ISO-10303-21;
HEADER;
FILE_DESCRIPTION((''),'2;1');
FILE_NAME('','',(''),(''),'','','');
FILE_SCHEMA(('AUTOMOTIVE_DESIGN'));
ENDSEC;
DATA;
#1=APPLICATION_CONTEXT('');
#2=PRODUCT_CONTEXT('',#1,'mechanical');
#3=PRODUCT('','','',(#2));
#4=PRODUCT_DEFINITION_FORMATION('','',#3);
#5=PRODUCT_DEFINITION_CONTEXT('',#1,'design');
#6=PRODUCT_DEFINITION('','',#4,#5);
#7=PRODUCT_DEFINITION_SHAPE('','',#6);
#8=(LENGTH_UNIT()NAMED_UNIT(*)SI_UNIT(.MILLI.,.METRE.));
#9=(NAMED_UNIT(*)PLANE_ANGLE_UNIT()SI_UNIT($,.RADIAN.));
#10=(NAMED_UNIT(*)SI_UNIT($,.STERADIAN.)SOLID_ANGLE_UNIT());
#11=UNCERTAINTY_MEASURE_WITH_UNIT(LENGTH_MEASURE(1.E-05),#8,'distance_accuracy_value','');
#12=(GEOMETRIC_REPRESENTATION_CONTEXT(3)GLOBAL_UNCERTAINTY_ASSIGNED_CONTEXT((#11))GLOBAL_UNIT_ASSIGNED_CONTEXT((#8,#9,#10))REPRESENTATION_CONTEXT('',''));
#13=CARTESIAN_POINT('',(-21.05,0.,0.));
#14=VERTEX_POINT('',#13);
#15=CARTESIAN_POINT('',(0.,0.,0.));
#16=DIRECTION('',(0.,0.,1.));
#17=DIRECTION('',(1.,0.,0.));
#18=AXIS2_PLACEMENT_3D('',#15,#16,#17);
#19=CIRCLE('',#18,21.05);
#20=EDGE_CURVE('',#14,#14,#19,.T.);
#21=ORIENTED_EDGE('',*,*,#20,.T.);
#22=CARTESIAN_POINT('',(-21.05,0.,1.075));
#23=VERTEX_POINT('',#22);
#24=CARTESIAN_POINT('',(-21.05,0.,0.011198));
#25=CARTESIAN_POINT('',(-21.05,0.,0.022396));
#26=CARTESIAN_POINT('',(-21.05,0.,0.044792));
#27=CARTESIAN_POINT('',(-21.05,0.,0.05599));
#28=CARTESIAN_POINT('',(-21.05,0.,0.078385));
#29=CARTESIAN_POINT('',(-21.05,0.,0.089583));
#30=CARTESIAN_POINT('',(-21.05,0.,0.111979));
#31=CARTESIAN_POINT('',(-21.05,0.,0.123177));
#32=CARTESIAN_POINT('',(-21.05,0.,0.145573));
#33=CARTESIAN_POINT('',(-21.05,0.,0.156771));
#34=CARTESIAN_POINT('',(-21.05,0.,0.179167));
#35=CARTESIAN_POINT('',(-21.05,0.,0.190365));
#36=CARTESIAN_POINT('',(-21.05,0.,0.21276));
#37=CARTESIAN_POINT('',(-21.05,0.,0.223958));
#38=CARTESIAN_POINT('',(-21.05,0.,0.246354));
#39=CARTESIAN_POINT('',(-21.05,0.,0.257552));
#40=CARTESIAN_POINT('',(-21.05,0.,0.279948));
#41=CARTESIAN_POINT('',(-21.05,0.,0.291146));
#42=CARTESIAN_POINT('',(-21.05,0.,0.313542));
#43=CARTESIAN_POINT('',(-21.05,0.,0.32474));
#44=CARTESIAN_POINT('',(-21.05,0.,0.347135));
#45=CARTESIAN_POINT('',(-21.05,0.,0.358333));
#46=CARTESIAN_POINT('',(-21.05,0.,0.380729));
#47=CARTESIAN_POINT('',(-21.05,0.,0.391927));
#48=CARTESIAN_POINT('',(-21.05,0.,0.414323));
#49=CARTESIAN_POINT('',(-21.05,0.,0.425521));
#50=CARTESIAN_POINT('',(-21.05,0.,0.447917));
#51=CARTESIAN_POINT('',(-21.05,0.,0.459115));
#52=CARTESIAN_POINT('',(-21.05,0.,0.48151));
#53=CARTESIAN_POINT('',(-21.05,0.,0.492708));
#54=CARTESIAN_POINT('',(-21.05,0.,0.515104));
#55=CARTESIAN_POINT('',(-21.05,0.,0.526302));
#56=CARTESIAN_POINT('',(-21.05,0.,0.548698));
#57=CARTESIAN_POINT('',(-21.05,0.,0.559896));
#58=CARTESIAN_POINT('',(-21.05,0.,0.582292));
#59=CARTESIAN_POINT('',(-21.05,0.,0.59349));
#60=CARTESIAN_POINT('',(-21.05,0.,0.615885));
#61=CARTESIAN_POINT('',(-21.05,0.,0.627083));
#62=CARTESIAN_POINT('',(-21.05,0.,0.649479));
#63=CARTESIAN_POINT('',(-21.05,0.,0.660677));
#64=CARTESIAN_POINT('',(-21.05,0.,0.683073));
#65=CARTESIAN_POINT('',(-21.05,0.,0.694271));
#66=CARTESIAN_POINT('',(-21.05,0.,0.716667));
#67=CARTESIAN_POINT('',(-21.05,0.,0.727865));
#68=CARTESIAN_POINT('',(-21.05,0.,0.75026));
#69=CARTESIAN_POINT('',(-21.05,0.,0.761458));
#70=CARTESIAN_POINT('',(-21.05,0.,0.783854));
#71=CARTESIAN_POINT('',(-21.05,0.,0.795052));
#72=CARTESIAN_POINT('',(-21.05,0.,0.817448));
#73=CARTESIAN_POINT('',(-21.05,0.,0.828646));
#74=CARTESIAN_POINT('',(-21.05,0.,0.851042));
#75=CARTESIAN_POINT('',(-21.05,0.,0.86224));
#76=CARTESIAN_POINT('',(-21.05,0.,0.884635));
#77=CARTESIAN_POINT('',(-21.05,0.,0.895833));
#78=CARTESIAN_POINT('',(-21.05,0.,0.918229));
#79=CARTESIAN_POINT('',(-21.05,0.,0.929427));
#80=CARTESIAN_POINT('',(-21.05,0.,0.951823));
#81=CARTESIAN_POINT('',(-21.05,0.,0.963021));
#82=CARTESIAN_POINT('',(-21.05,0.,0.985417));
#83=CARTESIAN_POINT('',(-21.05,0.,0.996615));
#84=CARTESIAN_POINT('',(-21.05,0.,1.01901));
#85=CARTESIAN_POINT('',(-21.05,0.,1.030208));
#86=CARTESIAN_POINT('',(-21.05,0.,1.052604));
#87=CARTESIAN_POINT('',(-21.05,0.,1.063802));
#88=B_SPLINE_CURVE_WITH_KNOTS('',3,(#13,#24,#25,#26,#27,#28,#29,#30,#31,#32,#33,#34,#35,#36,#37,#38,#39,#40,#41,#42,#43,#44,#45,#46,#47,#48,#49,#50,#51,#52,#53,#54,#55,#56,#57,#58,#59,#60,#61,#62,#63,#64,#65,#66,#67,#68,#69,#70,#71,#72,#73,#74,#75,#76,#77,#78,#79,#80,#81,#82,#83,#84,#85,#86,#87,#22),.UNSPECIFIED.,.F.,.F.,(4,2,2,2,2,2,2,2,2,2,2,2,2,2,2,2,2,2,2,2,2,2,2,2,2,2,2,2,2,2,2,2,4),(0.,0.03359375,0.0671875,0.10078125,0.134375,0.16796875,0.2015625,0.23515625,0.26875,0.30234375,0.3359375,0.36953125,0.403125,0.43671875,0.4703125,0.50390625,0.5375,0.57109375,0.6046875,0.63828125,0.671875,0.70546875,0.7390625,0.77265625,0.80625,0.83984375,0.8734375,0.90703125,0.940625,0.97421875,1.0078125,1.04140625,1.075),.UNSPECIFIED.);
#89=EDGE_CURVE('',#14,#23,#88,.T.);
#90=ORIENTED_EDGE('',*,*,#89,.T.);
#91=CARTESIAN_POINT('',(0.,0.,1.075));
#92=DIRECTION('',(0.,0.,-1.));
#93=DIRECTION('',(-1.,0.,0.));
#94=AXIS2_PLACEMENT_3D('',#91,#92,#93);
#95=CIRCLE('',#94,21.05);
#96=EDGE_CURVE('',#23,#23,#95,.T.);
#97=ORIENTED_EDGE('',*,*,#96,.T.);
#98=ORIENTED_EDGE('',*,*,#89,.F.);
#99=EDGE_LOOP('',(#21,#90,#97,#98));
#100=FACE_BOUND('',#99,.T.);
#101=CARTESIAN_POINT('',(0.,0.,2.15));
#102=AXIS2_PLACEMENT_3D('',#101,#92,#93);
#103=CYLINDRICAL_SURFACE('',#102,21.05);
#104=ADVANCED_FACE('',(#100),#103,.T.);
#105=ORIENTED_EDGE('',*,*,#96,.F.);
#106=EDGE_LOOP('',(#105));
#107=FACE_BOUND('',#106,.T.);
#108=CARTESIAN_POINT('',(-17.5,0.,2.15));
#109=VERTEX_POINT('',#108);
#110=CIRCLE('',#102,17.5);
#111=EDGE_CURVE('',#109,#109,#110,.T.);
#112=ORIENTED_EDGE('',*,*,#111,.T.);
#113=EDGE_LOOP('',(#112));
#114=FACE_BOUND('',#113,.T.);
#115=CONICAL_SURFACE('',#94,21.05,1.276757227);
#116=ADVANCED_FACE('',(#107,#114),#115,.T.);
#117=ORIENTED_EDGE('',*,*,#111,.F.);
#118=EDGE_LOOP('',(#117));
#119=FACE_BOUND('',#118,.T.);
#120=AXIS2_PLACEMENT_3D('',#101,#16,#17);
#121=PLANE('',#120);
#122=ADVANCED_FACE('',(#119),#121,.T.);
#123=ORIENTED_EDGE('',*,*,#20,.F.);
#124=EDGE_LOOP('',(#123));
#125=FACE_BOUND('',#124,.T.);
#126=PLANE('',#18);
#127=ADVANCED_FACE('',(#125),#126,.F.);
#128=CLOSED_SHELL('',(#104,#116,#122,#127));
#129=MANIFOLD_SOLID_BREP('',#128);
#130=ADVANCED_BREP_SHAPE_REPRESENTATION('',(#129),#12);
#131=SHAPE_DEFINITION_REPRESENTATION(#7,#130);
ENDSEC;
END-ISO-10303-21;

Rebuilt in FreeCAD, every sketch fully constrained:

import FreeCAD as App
import Part
import Sketcher
from FreeCAD import Vector
Q = App.Units.Quantity

doc = App.newDocument("Part")
body = doc.addObject("PartDesign::Body", "Body")

sketch1 = body.newObject("Sketcher::SketchObject", "Sketch")
sketch1.AttachmentSupport = (doc.getObject("XY_Plane"), [""])
sketch1.MapMode = "FlatFace"
sketch1.addGeometry(Part.Circle(Vector(0, 0, 0), Vector(0, 0, 1), 21), False)
sketch1.addConstraint([
    Sketcher.Constraint("Coincident", 0, 3, -1, 1),
    Sketcher.Constraint("Diameter", 0, Q("42.1 mm")),
])
pad1 = body.newObject("PartDesign::Pad", "Pad")
pad1.Profile = sketch1
pad1.Length = 2.15

sketch2 = body.newObject("Sketcher::SketchObject", "Sketch001")
sketch2.AttachmentSupport = (doc.getObject("XZ_Plane"), [""])
sketch2.MapMode = "FlatFace"
sketch2.addGeometry([
    Part.LineSegment(Vector(21.1, 1.1, 0), Vector(17.5, 2.1, 0)),
    Part.LineSegment(Vector(17.5, 2.1, 0), Vector(21.1, 2.1, 0)),
    Part.LineSegment(Vector(21.1, 2.1, 0), Vector(21.1, 1.1, 0)),
], False)
sketch2.addConstraint([
    Sketcher.Constraint("Coincident", 0, 2, 1, 1),
    Sketcher.Constraint("Coincident", 1, 2, 2, 1),
    Sketcher.Constraint("Coincident", 2, 2, 0, 1),
    Sketcher.Constraint("Horizontal", 1),
    Sketcher.Constraint("Vertical", 2),
    Sketcher.Constraint("DistanceX", 1, 1, 1, 2, Q("3.55 mm")),
    Sketcher.Constraint("DistanceX", -1, 1, 0, 2, Q("17.5 mm")),
    Sketcher.Constraint("DistanceY", 2, 2, 2, 1, Q("1.075 mm")),
    Sketcher.Constraint("DistanceY", -1, 1, 0, 2, Q("2.15 mm")),
])
groove = body.newObject("PartDesign::Groove", "Groove")
groove.Profile = sketch2
groove.ReferenceAxis = (sketch2, ["V_Axis"])
groove.Angle = 360

doc.recompute()
